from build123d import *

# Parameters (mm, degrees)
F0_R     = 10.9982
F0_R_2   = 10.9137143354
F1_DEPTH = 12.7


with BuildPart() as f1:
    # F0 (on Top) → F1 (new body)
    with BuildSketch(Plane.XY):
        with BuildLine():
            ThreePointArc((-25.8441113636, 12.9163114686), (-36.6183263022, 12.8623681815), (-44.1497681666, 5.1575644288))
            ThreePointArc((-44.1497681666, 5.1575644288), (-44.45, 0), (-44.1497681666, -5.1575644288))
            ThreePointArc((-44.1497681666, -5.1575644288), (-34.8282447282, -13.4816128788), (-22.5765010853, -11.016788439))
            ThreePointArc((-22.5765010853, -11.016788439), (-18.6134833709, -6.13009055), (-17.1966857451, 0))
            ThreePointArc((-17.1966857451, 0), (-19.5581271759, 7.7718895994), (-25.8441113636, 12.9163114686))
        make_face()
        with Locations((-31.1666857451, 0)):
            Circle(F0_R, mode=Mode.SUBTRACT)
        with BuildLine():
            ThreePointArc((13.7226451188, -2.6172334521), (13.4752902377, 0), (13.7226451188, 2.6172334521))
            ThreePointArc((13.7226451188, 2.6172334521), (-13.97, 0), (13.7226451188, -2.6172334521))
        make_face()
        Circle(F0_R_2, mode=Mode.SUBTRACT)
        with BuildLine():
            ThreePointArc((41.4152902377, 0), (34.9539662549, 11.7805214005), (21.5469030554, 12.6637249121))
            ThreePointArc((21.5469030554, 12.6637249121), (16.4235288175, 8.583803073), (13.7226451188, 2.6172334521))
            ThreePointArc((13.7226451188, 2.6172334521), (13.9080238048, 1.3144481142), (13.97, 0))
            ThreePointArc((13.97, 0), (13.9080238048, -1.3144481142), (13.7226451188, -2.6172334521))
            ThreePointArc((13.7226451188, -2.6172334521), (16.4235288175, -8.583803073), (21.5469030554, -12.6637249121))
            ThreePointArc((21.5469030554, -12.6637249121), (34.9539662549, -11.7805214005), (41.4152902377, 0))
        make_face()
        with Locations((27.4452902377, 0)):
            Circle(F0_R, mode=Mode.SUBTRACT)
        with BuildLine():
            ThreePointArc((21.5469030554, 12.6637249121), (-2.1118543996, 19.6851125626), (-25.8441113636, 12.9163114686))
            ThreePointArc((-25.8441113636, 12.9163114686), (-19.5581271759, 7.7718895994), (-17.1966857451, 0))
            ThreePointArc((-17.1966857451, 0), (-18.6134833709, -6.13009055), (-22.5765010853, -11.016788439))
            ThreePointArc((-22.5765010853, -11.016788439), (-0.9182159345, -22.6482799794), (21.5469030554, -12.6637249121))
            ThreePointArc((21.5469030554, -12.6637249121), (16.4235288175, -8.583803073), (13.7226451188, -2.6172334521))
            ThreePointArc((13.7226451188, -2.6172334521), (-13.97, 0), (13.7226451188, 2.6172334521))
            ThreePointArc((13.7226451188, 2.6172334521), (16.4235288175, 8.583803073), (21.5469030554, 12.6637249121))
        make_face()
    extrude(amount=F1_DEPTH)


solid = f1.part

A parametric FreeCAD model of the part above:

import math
import FreeCAD as App
import Part
import Sketcher

V = App.Vector
Q = App.Units.Quantity

doc = App.newDocument("Part")
body = doc.addObject("PartDesign::Body", "Body")

# Sketch on XY plane
sketch1 = body.newObject("Sketcher::SketchObject", "Sketch")
sketch1.AttachmentSupport = (doc.getObject("XY_Plane"), [""])
sketch1.MapMode = "FlatFace"
sketch1.addGeometry(Part.ArcOfCircle(Part.Circle(V(-31.166686, 0, 0), V(0, 0, 1), 13.97), math.radians(67.604342), math.radians(158.334417)), False)
sketch1.addGeometry(Part.ArcOfCircle(Part.Circle(V(0, 0, 0), V(0, 0, 1), 44.45), math.radians(173.336922), math.radians(186.663078)), False)
sketch1.addGeometry(Part.ArcOfCircle(Part.Circle(V(-31.166686, 0, 0), V(0, 0, 1), 13.97), math.radians(-158.334417), math.radians(-52.055181)), False)
sketch1.addGeometry(Part.ArcOfCircle(Part.Circle(V(0.123938, 5.272277, 0), V(0, 0, 1), 27.94), math.radians(-144.33806), math.radians(-39.937164)), False)
sketch1.addGeometry(Part.ArcOfCircle(Part.Circle(V(27.44529, 0, 0), V(0, 0, 1), 13.97), math.radians(-114.974706), math.radians(0)), False)
sketch1.addGeometry(Part.ArcOfCircle(Part.Circle(V(27.44529, 0, 0), V(0, 0, 1), 13.97), math.radians(0), math.radians(114.974706)), False)
sketch1.addGeometry(Part.ArcOfCircle(Part.Circle(V(-2.347237, -24.478125, 0), V(0, 0, 1), 44.163865), math.radians(57.245963), math.radians(122.143288)), False)
sketch1.addGeometry(Part.Circle(V(-31.166686, 0, 0), V(0, 0, 1), 10.9982), False)
sketch1.addGeometry(Part.Circle(V(27.44529, 0, 0), V(0, 0, 1), 10.9982), False)
sketch1.addGeometry(Part.ArcOfCircle(Part.Circle(V(0, 0, 0), V(0, 0, 1), 13.97), math.radians(-10.797981), math.radians(0)), False)
sketch1.addGeometry(Part.ArcOfCircle(Part.Circle(V(27.44529, 0, 0), V(0, 0, 1), 13.97), math.radians(169.202019), math.radians(190.797981)), False)
sketch1.addGeometry(Part.ArcOfCircle(Part.Circle(V(0, 0, 0), V(0, 0, 1), 13.97), math.radians(0), math.radians(10.797981)), False)
sketch1.addGeometry(Part.Circle(V(0, 0, 0), V(0, 0, 1), 10.913714), False)
sketch1.addConstraint(Sketcher.Constraint("Coincident", 0, 2, 1, 1))
sketch1.addConstraint(Sketcher.Constraint("Coincident", 1, 2, 2, 1))
sketch1.addConstraint(Sketcher.Constraint("Coincident", 2, 2, 3, 1))
sketch1.addConstraint(Sketcher.Constraint("Coincident", 3, 2, 4, 1))
sketch1.addConstraint(Sketcher.Constraint("Tangent", 4, 2, 5, 1))
sketch1.addConstraint(Sketcher.Constraint("Coincident", 5, 2, 6, 1))
sketch1.addConstraint(Sketcher.Constraint("Coincident", 6, 2, 0, 1))
sketch1.addConstraint(Sketcher.Constraint("Coincident", 9, 1, 10, 2))
sketch1.addConstraint(Sketcher.Constraint("Coincident", 10, 1, 11, 2))
sketch1.addConstraint(Sketcher.Constraint("Tangent", 11, 1, 9, 2))
sketch1.addConstraint(Sketcher.Constraint("Coincident", 1, 3, -1, 1))
sketch1.addConstraint(Sketcher.Constraint("Coincident", 9, 3, -1, 1))
sketch1.addConstraint(Sketcher.Constraint("Coincident", 12, 3, -1, 1))
sketch1.addConstraint(Sketcher.Constraint("Coincident", 2, 3, 0, 3))
sketch1.addConstraint(Sketcher.Constraint("Coincident", 7, 3, 0, 3))
sketch1.addConstraint(Sketcher.Constraint("Coincident", 8, 3, 4, 3))
sketch1.addConstraint(Sketcher.Constraint("Coincident", 10, 3, 4, 3))
sketch1.addConstraint(Sketcher.Constraint("Equal", 0, 2))
sketch1.addConstraint(Sketcher.Constraint("Equal", 2, 4))
sketch1.addConstraint(Sketcher.Constraint("Equal", 4, 5))
sketch1.addConstraint(Sketcher.Constraint("Equal", 7, 8))
sketch1.addConstraint(Sketcher.Constraint("Equal", 5, 9))
sketch1.addConstraint(Sketcher.Constraint("Equal", 9, 10))
sketch1.addConstraint(Sketcher.Constraint("Equal", 10, 11))
sketch1.addConstraint(Sketcher.Constraint("Symmetric", 3, 2, 5, 2, -1))
sketch1.addConstraint(Sketcher.Constraint("PointOnObject", 0, 3, -1))
sketch1.addConstraint(Sketcher.Constraint("PointOnObject", 4, 2, -1))
sketch1.addConstraint(Sketcher.Constraint("PointOnObject", 11, 1, -1))
sketch1.addConstraint(Sketcher.Constraint("Radius", 3, Q("1.1 in")))
sketch1.addConstraint(Sketcher.Constraint("Radius", 0, Q("0.55 in")))
sketch1.addConstraint(Sketcher.Constraint("Radius", 1, Q("1.75 in")))
sketch1.addConstraint(Sketcher.Constraint("Diameter", 7, Q("0.866 in")))
sketch1.addConstraint(Sketcher.Constraint("Diameter", 12, Q("21.827429 mm")))
sketch1.addConstraint(Sketcher.Constraint("Radius", 6, Q("44.163865 mm")))
sketch1.addConstraint(Sketcher.Constraint("DistanceX", 2, 2, -1, 1, Q("22.576501 mm")))
sketch1.addConstraint(Sketcher.Constraint("DistanceY", 2, 2, 6, 2, Q("23.9331 mm")))
sketch1.addConstraint(Sketcher.Constraint("DistanceX", -1, 1, 3, 3, Q("0.123938 mm")))
sketch1.addConstraint(Sketcher.Constraint("DistanceX", -1, 1, 4, 3, Q("27.44529 mm")))
sketch1.addConstraint(Sketcher.Constraint("DistanceX", 0, 2, -1, 1, Q("44.149768 mm")))
pad1 = body.newObject("PartDesign::Pad", "Pad")
pad1.Profile = sketch1
pad1.Length = Q("0.5 in")

doc.recompute()
